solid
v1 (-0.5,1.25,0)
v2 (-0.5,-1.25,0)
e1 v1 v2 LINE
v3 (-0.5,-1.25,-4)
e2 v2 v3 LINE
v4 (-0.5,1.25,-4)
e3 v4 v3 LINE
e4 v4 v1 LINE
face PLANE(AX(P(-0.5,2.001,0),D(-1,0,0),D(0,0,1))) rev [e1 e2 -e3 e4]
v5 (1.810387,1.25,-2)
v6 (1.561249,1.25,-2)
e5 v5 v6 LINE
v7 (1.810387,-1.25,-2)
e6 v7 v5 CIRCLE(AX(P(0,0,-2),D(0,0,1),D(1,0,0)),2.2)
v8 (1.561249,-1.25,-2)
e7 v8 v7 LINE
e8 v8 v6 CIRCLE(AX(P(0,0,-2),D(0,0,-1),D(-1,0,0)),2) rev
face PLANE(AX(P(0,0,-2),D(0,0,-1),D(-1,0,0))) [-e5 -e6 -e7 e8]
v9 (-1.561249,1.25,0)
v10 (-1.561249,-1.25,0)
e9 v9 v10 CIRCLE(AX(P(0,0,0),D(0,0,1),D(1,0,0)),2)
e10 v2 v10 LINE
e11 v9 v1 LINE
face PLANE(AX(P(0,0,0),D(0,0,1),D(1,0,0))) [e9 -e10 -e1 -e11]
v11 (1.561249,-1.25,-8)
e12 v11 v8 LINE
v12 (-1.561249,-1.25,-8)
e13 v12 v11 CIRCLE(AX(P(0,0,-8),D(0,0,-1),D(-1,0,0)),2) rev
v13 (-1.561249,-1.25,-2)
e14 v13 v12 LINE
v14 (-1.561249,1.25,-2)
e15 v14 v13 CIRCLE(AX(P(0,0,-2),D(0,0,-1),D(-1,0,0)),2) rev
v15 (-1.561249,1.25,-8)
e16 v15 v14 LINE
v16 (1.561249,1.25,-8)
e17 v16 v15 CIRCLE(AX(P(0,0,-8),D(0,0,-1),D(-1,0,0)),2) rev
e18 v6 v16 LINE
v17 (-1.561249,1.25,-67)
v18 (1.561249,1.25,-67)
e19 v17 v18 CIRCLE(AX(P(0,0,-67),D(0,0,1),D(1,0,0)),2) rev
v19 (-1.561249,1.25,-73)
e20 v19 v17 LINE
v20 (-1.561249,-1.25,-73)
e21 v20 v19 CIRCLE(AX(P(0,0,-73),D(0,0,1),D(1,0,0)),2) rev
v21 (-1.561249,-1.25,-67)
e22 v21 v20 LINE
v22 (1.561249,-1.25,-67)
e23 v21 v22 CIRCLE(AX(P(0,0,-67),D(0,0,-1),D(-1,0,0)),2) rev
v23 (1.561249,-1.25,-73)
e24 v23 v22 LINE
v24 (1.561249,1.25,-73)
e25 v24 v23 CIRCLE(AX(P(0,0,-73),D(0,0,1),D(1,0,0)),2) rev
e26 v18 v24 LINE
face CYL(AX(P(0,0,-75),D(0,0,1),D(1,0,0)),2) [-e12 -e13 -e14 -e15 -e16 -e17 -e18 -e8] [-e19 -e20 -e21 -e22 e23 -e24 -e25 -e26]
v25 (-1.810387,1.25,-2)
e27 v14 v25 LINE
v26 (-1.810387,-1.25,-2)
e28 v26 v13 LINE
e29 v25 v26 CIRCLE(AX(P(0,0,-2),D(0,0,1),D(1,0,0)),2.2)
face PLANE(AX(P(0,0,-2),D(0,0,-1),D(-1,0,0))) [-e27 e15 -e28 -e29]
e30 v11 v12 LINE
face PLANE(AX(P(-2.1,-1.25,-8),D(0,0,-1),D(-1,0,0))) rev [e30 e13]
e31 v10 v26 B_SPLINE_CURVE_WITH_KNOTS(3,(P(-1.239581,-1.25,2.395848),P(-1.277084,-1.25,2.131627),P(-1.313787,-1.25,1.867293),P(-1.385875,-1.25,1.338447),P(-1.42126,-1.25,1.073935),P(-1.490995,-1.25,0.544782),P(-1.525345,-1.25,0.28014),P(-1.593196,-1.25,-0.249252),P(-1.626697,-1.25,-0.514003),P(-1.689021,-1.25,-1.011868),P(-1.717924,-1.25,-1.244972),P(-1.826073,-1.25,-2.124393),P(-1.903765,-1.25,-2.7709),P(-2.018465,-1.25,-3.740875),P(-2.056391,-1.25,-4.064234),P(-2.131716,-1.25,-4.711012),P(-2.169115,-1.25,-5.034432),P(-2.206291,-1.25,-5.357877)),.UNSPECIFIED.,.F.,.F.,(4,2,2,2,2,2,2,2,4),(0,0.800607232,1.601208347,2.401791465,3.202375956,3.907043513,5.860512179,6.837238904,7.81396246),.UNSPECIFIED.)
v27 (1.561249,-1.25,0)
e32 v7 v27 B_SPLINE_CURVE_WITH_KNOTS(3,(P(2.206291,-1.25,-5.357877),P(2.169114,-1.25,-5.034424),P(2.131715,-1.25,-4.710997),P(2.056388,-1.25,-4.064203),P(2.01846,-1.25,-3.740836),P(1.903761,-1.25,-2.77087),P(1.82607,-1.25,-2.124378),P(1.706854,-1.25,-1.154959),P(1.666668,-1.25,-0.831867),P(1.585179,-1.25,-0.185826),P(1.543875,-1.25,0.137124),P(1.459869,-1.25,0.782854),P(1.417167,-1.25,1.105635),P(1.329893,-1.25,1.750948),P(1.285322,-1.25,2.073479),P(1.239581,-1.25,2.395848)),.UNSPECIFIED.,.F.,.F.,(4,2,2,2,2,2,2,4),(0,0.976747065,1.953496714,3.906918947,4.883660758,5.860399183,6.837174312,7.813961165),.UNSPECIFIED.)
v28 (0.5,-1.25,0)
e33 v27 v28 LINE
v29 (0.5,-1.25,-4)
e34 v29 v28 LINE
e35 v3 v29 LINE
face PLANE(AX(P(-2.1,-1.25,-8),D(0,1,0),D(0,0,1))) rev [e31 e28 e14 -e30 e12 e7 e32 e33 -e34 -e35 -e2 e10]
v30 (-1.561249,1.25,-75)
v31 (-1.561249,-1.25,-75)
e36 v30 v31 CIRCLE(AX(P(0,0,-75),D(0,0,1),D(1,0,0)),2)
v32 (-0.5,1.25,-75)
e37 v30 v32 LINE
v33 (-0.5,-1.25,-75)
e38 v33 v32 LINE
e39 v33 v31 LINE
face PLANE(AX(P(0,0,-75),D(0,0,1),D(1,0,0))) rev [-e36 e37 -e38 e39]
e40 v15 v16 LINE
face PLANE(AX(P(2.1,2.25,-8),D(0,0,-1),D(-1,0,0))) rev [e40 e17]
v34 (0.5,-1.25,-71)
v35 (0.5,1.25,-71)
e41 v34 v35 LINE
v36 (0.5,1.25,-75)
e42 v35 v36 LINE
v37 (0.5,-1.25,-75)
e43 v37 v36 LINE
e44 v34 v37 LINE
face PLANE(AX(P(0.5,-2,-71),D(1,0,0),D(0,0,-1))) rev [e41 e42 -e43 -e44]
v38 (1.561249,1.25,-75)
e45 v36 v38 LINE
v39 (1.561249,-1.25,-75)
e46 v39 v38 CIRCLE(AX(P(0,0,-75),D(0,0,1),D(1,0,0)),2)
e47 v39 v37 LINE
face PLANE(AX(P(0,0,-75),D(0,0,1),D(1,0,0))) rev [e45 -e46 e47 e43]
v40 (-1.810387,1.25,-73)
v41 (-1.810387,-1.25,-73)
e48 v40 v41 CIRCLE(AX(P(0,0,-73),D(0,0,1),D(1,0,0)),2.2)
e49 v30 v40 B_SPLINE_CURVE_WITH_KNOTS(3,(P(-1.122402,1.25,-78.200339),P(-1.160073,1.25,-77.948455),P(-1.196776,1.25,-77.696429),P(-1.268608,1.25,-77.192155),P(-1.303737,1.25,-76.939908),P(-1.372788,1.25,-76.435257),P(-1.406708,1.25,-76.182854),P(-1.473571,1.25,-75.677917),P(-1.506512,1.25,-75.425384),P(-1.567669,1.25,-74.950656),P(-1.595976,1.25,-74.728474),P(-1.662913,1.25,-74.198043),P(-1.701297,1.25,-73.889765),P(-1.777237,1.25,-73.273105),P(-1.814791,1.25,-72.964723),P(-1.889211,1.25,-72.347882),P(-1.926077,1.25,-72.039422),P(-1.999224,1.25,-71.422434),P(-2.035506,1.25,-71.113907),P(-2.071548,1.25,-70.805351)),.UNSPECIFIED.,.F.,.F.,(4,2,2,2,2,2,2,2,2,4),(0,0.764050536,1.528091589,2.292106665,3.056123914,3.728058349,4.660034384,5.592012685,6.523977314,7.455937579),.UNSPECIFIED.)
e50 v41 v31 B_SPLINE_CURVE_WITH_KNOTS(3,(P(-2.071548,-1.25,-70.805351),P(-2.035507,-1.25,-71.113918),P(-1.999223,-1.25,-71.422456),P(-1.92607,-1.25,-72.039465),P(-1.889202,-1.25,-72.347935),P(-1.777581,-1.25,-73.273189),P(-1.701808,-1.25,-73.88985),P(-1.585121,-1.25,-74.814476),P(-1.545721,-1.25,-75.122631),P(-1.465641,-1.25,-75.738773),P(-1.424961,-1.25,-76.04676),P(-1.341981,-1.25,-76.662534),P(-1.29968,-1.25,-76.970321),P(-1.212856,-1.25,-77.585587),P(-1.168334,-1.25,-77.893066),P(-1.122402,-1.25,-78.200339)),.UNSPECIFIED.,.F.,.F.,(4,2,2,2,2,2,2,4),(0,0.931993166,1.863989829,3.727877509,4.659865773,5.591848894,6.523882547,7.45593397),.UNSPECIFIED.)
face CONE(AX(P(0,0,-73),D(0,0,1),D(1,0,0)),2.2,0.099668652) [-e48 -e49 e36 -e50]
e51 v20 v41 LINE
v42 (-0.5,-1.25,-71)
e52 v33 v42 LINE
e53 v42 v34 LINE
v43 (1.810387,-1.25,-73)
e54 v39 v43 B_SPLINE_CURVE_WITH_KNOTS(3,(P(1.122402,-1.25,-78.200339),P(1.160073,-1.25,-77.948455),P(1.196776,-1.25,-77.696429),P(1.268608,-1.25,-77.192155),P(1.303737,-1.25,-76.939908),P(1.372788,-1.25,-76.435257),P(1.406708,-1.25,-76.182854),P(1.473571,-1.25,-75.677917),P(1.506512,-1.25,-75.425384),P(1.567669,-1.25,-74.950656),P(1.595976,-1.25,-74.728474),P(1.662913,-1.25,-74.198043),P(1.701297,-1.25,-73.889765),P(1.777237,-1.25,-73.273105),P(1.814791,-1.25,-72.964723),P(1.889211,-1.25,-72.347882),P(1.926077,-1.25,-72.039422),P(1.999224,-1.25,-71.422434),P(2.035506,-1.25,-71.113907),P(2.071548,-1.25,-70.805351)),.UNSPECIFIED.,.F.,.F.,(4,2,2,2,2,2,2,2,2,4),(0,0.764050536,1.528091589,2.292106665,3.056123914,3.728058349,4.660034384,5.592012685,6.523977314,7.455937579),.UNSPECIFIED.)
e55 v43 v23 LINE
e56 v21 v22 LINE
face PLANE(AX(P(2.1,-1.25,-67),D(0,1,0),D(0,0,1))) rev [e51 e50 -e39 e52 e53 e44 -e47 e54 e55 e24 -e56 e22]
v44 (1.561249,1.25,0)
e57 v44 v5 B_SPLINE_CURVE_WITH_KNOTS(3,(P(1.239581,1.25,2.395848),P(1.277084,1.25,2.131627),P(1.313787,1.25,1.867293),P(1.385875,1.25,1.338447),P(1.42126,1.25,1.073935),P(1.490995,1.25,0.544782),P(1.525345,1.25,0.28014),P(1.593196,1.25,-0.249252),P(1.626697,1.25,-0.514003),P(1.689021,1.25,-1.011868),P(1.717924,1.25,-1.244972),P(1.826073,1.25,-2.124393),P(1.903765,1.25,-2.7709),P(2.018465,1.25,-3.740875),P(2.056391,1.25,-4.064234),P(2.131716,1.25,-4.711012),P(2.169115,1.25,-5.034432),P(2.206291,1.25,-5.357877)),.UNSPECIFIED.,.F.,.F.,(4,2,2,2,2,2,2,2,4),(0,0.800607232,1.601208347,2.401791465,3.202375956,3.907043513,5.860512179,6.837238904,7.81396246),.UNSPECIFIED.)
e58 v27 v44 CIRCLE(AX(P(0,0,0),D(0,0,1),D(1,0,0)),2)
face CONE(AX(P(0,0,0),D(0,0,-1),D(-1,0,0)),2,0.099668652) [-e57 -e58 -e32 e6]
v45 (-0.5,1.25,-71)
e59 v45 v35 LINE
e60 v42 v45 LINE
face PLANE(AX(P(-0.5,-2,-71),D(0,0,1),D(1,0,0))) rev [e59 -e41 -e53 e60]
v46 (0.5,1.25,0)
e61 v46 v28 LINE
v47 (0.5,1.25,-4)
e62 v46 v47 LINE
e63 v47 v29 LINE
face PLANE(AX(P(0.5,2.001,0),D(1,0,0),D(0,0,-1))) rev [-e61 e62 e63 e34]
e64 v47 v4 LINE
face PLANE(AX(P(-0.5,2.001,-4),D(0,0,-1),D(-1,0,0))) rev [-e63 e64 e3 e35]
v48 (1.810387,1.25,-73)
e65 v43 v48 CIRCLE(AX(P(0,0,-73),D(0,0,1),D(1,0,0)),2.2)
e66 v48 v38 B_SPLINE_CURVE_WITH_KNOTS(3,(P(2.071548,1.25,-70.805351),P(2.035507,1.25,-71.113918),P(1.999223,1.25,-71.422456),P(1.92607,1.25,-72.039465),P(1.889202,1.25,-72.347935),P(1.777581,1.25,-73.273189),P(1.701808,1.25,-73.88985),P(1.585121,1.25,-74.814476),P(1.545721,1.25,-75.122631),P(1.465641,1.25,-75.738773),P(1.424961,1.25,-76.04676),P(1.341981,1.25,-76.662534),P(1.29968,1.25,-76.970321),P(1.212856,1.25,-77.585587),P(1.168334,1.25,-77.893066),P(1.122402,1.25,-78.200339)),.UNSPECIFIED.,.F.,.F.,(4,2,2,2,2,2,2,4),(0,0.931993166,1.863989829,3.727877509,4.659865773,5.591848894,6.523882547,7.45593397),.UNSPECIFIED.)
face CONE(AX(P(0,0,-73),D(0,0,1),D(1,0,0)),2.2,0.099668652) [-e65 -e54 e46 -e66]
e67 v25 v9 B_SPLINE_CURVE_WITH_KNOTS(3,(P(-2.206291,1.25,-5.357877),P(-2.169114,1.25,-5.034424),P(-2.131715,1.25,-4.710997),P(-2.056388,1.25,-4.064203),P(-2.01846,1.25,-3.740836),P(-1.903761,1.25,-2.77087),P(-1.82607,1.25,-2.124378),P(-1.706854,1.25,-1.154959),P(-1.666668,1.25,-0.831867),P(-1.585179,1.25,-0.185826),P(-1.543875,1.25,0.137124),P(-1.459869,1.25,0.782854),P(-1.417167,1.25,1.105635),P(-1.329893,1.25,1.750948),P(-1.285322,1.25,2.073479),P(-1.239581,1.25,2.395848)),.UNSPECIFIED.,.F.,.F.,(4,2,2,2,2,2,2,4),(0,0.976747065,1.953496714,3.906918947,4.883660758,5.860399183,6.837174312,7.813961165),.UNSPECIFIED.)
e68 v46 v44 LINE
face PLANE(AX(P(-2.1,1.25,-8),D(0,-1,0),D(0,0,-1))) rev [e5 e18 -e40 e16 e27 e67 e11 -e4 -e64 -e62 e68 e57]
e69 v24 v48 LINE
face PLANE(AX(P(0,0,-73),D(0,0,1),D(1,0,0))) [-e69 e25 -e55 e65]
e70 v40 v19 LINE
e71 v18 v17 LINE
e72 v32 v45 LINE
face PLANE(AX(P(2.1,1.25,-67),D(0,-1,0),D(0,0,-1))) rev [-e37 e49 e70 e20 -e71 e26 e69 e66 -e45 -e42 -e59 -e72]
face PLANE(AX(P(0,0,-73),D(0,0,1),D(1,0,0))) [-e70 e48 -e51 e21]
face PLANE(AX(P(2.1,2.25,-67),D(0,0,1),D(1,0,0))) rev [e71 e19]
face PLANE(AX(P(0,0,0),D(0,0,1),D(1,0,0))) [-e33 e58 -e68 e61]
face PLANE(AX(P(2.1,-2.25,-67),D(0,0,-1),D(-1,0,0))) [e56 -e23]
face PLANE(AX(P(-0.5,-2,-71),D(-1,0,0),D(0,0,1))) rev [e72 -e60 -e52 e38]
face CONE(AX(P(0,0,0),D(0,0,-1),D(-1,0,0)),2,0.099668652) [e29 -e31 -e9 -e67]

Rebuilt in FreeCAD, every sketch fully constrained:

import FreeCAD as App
import Part
import Sketcher
Q = App.Units.Quantity


def add_polygon(sketch, points):
    """Adds a closed chain of lines whose ends are joined by coincident constraints."""
    first, n = sketch.GeometryCount, len(points)
    for a, b in zip(points, points[1:] + points[:1]):
        sketch.addGeometry(Part.LineSegment(App.Vector(*a, 0), App.Vector(*b, 0)), False)
    for i in range(n):
        sketch.addConstraint(Sketcher.Constraint("Coincident", first + i, 2, first + (i + 1) % n, 1))

doc = App.newDocument("Part")
body = doc.addObject("PartDesign::Body", "Body")

# Sketch on XY plane
sketch1 = body.newObject("Sketcher::SketchObject", "Sketch")
sketch1.AttachmentSupport = (doc.getObject("XY_Plane"), [""])
sketch1.MapMode = "FlatFace"
sketch1.addGeometry(Part.Circle(App.Vector(0, 0, 0), App.Vector(0, 0, 1), 2), False)
sketch1.addConstraint(Sketcher.Constraint("Coincident", 0, 3, -1, 1))
sketch1.addConstraint(Sketcher.Constraint("Diameter", 0, Q("4 mm")))
pad1 = body.newObject("PartDesign::Pad", "Pad")
pad1.Profile = sketch1
pad1.Length = 75
pad1.Reversed = True

# Sketch on XZ plane
sketch2 = body.newObject("Sketcher::SketchObject", "Sketch001")
sketch2.AttachmentSupport = (doc.getObject("XZ_Plane"), [""])
sketch2.MapMode = "FlatFace"
add_polygon(sketch2, [(0, -2), (0, 0), (2, 0), (2.2, -2)])  # lines 0-3
sketch2.addConstraint(Sketcher.Constraint("Vertical", 0))
sketch2.addConstraint(Sketcher.Constraint("Horizontal", 1))
sketch2.addConstraint(Sketcher.Constraint("Horizontal", 3))
sketch2.addConstraint(Sketcher.Constraint("Coincident", 0, 2, -1, 1))
sketch2.addConstraint(Sketcher.Constraint("Equal", 1, 0))
sketch2.addConstraint(Sketcher.Constraint("DistanceX", 1, 1, 1, 2, Q("2 mm")))
sketch2.addConstraint(Sketcher.Constraint("DistanceX", 3, 2, 3, 1, Q("2.2 mm")))
revolution = body.newObject("PartDesign::Revolution", "Revolution")
revolution.Profile = sketch2
revolution.ReferenceAxis = (sketch2, ["V_Axis"])
revolution.Angle = 360

# Sketch on XY plane
sketch3 = body.newObject("Sketcher::SketchObject", "Sketch002")
sketch3.AttachmentSupport = (doc.getObject("XY_Plane"), [""])
sketch3.MapMode = "FlatFace"
add_polygon(sketch3, [(-2.1, 2.2), (-2.1, 1.2), (2.1, 1.2), (2.1, 2.2)])  # lines 0-3
add_polygon(sketch3, [(-2.1, -1.2), (-2.1, -2.2), (2.1, -2.2), (2.1, -1.2)])  # lines 4-7
sketch3.addConstraint(Sketcher.Constraint("Vertical", 0))
sketch3.addConstraint(Sketcher.Constraint("Horizontal", 1))
sketch3.addConstraint(Sketcher.Constraint("Vertical", 2))
sketch3.addConstraint(Sketcher.Constraint("Horizontal", 3))
sketch3.addConstraint(Sketcher.Constraint("Vertical", 4))
sketch3.addConstraint(Sketcher.Constraint("Horizontal", 5))
sketch3.addConstraint(Sketcher.Constraint("Vertical", 6))
sketch3.addConstraint(Sketcher.Constraint("Horizontal", 7))
sketch3.addConstraint(Sketcher.Constraint("Symmetric", 2, 2, 4, 2, -1, 1))
sketch3.addConstraint(Sketcher.Constraint("Symmetric", 0, 2, 6, 2, -1, 1))
sketch3.addConstraint(Sketcher.Constraint("Vertical", 3, 2, 4, 2))
sketch3.addConstraint(Sketcher.Constraint("DistanceY", 0, 2, 0, 1, Q("1 mm")))
sketch3.addConstraint(Sketcher.Constraint("DistanceX", 1, 1, 1, 2, Q("4.2 mm")))
sketch3.addConstraint(Sketcher.Constraint("DistanceY", 4, 2, 0, 2, Q("3.5 mm")))
pocket1 = body.newObject("PartDesign::Pocket", "Pocket")
pocket1.Profile = sketch3
pocket1.Length = 8

# Sketch on XZ plane
sketch4 = body.newObject("Sketcher::SketchObject", "Sketch003")
sketch4.AttachmentSupport = (doc.getObject("XZ_Plane"), [""])
sketch4.MapMode = "FlatFace"
sketch4.AttachmentOffset = App.Placement(App.Vector(0, 0, 1.25), App.Rotation())
add_polygon(sketch4, [(-0.5, 0), (-0.5, -4), (0.5, -4), (0.5, 0)])  # lines 0-3
sketch4.addConstraint(Sketcher.Constraint("Vertical", 0))
sketch4.addConstraint(Sketcher.Constraint("Horizontal", 1))
sketch4.addConstraint(Sketcher.Constraint("Vertical", 2))
sketch4.addConstraint(Sketcher.Constraint("Horizontal", 3))
sketch4.addConstraint(Sketcher.Constraint("Symmetric", 2, 2, 3, 2, -1, 1))
sketch4.addConstraint(Sketcher.Constraint("DistanceX", 1, 1, 1, 2, Q("1 mm")))
sketch4.addConstraint(Sketcher.Constraint("DistanceY", 0, 2, 0, 1, Q("4 mm")))
pocket2 = body.newObject("PartDesign::Pocket", "Pocket001")
pocket2.Profile = sketch4
pocket2.Type = "UpToFirst"

# Sketch on XZ plane
sketch5 = body.newObject("Sketcher::SketchObject", "Sketch004")
sketch5.AttachmentSupport = (doc.getObject("XZ_Plane"), [""])
sketch5.MapMode = "FlatFace"
add_polygon(sketch5, [(0, -75), (0, -73), (2.2, -73), (2, -75)])  # lines 0-3
sketch5.addConstraint(Sketcher.Constraint("Vertical", 0))
sketch5.addConstraint(Sketcher.Constraint("Horizontal", 1))
sketch5.addConstraint(Sketcher.Constraint("Horizontal", 3))
sketch5.addConstraint(Sketcher.Constraint("PointOnObject", 0, 2, -2))
sketch5.addConstraint(Sketcher.Constraint("Equal", 3, 0))
sketch5.addConstraint(Sketcher.Constraint("DistanceX", 3, 2, 3, 1, Q("2 mm")))
sketch5.addConstraint(Sketcher.Constraint("DistanceX", 1, 1, 1, 2, Q("2.2 mm")))
sketch5.addConstraint(Sketcher.Constraint("DistanceY", 0, 2, -1, 1, Q("73 mm")))
revolution2 = body.newObject("PartDesign::Revolution", "Revolution001")
revolution2.Profile = sketch5
revolution2.ReferenceAxis = (sketch5, ["V_Axis"])
revolution2.Angle = 360

# Sketch on XY plane
sketch6 = body.newObject("Sketcher::SketchObject", "Sketch005")
sketch6.AttachmentSupport = (doc.getObject("XY_Plane"), [""])
sketch6.MapMode = "FlatFace"
sketch6.AttachmentOffset = App.Placement(App.Vector(0, 0, -75), App.Rotation())
add_polygon(sketch6, [(2.1, 2.2), (2.1, 1.2), (-2.1, 1.2), (-2.1, 2.2)])  # lines 0-3
add_polygon(sketch6, [(2.1, -1.2), (2.1, -2.2), (-2.1, -2.2), (-2.1, -1.2)])  # lines 4-7
sketch6.addConstraint(Sketcher.Constraint("Vertical", 0))
sketch6.addConstraint(Sketcher.Constraint("Horizontal", 1))
sketch6.addConstraint(Sketcher.Constraint("Vertical", 2))
sketch6.addConstraint(Sketcher.Constraint("Horizontal", 3))
sketch6.addConstraint(Sketcher.Constraint("Vertical", 4))
sketch6.addConstraint(Sketcher.Constraint("Horizontal", 5))
sketch6.addConstraint(Sketcher.Constraint("Vertical", 6))
sketch6.addConstraint(Sketcher.Constraint("Horizontal", 7))
sketch6.addConstraint(Sketcher.Constraint("Symmetric", 2, 2, 4, 2, -1, 1))
sketch6.addConstraint(Sketcher.Constraint("Symmetric", 0, 2, 6, 2, -1, 1))
sketch6.addConstraint(Sketcher.Constraint("Vertical", 3, 2, 4, 2))
sketch6.addConstraint(Sketcher.Constraint("DistanceY", 0, 2, 0, 1, Q("1 mm")))
sketch6.addConstraint(Sketcher.Constraint("DistanceX", 1, 2, 1, 1, Q("4.2 mm")))
sketch6.addConstraint(Sketcher.Constraint("DistanceY", 4, 2, 0, 2, Q("3.5 mm")))
pocket3 = body.newObject("PartDesign::Pocket", "Pocket002")
pocket3.Profile = sketch6
pocket3.Length = 8
pocket3.Reversed = True

# Sketch on XZ plane
sketch7 = body.newObject("Sketcher::SketchObject", "Sketch006")
sketch7.AttachmentSupport = (doc.getObject("XZ_Plane"), [""])
sketch7.MapMode = "FlatFace"
sketch7.AttachmentOffset = App.Placement(App.Vector(0, 0, -1.25), App.Rotation())
add_polygon(sketch7, [(-0.5, -75), (-0.5, -71), (0.5, -71), (0.5, -75)])  # lines 0-3
sketch7.addConstraint(Sketcher.Constraint("Vertical", 0))
sketch7.addConstraint(Sketcher.Constraint("Horizontal", 1))
sketch7.addConstraint(Sketcher.Constraint("Vertical", 2))
sketch7.addConstraint(Sketcher.Constraint("Horizontal", 3))
sketch7.addConstraint(Sketcher.Constraint("DistanceX", 1, 1, 1, 2, Q("1 mm")))
sketch7.addConstraint(Sketcher.Constraint("DistanceY", 0, 1, 0, 2, Q("4 mm")))
sketch7.addConstraint(Sketcher.Constraint("DistanceY", 0, 2, -1, 1, Q("71 mm")))
sketch7.addConstraint(Sketcher.Constraint("DistanceX", 0, 2, -1, 1, Q("0.5 mm")))
pocket4 = body.newObject("PartDesign::Pocket", "Pocket003")
pocket4.Profile = sketch7
pocket4.Type = "ThroughAll"
pocket4.Reversed = True

doc.recompute()
